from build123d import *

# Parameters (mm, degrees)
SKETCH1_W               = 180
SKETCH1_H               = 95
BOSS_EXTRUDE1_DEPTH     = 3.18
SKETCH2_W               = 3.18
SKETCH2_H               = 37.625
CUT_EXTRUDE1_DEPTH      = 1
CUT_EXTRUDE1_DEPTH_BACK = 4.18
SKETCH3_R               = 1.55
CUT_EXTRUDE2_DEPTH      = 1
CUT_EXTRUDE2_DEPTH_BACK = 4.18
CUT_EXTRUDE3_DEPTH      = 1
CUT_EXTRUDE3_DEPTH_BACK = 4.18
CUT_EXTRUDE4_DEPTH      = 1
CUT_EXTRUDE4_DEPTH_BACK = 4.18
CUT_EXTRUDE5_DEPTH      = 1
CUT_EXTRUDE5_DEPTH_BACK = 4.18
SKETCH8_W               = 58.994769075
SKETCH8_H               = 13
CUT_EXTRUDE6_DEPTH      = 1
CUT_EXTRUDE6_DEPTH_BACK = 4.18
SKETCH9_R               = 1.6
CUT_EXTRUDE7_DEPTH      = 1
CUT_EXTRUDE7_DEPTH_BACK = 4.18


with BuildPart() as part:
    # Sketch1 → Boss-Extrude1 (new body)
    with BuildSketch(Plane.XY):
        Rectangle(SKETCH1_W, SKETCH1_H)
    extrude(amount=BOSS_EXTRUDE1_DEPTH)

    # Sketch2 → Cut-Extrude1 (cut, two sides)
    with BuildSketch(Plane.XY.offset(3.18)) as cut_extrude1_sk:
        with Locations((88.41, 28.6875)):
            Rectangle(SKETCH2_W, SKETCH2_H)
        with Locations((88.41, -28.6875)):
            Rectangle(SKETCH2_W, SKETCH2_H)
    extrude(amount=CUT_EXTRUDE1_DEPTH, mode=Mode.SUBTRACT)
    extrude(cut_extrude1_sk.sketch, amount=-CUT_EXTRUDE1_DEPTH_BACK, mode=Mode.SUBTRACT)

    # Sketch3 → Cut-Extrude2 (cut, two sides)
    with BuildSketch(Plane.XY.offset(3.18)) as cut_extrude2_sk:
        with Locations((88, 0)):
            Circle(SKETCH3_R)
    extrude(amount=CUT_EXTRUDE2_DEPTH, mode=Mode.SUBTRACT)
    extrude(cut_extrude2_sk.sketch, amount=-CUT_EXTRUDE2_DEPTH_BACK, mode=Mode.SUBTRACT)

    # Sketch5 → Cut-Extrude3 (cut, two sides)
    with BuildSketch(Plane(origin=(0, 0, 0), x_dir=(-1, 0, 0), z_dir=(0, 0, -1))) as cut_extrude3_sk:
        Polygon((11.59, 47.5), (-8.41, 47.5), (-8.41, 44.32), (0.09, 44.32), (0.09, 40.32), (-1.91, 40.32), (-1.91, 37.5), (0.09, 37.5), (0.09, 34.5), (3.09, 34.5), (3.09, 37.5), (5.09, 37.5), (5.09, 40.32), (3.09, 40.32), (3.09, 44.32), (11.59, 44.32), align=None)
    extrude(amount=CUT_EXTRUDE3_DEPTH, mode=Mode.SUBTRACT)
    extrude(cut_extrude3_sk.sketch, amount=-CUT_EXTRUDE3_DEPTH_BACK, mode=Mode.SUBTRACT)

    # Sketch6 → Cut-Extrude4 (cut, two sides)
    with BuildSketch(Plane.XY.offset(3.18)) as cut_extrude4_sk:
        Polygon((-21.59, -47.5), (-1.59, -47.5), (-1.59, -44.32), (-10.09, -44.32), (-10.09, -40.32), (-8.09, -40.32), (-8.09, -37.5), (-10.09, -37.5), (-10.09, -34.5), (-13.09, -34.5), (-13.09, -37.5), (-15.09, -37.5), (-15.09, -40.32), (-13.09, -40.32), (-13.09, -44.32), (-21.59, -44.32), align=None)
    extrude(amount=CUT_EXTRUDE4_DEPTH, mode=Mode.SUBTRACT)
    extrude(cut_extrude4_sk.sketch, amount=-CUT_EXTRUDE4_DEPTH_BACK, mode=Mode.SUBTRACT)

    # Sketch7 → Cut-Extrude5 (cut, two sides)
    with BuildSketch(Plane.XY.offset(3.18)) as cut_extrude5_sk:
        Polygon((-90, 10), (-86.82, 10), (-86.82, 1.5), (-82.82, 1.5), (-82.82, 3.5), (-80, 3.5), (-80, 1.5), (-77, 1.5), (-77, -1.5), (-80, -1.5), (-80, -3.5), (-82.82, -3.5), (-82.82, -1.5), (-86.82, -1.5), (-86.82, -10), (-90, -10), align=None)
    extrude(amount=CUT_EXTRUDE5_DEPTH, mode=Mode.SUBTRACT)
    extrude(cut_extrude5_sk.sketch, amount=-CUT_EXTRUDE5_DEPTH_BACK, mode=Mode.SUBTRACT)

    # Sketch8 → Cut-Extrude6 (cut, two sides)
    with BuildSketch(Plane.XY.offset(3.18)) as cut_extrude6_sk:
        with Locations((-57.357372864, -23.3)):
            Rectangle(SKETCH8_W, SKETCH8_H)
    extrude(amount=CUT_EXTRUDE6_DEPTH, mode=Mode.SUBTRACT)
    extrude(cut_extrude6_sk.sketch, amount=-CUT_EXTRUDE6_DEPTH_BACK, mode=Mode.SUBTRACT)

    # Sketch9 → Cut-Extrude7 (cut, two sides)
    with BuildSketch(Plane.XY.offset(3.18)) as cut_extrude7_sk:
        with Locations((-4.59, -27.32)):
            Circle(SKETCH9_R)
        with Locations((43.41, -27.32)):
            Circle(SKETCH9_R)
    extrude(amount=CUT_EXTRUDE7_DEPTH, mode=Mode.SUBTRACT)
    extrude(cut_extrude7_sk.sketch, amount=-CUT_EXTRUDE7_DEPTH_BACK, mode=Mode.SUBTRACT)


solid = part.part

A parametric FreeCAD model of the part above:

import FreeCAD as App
import Part
import Sketcher
from FreeCAD import Vector

doc = App.newDocument("Part")
body = doc.addObject("PartDesign::Body", "Body")

sketch1 = body.newObject("Sketcher::SketchObject", "Sketch")
sketch1.AttachmentSupport = (doc.getObject("XY_Plane"), [""])
sketch1.MapMode = "FlatFace"
sketch1.addGeometry([
    Part.LineSegment(Vector(-90, 48, 0), Vector(-90, -48, 0)),
    Part.LineSegment(Vector(-90, -48, 0), Vector(90, -48, 0)),
    Part.LineSegment(Vector(90, -48, 0), Vector(90, 48, 0)),
    Part.LineSegment(Vector(90, 48, 0), Vector(-90, 48, 0)),
], False)
sketch1.addConstraint([
    Sketcher.Constraint("Coincident", 0, 2, 1, 1),
    Sketcher.Constraint("Coincident", 1, 2, 2, 1),
    Sketcher.Constraint("Coincident", 2, 2, 3, 1),
    Sketcher.Constraint("Coincident", 3, 2, 0, 1),
    Sketcher.Constraint("Vertical", 0),
    Sketcher.Constraint("Horizontal", 1),
    Sketcher.Constraint("Vertical", 2),
    Sketcher.Constraint("Horizontal", 3),
    Sketcher.Constraint("Symmetric", 0, 2, 2, 2, -1, 1),
    Sketcher.Constraint("DistanceX", 1, 1, 1, 2, 180.0),
    Sketcher.Constraint("DistanceY", 0, 2, 0, 1, 95.0),
])
pad1 = body.newObject("PartDesign::Pad", "Pad")
pad1.Profile = sketch1
pad1.Length = 3.18

sketch2 = body.newObject("Sketcher::SketchObject", "Sketch001")
sketch2.AttachmentSupport = (doc.getObject("XY_Plane"), [""])
sketch2.MapMode = "FlatFace"
sketch2.AttachmentOffset = App.Placement(Vector(0, 0, 3.18), App.Rotation())
sketch2.addGeometry([
    Part.LineSegment(Vector(86.8, 47.5, 0), Vector(86.8, 9.9, 0)),
    Part.LineSegment(Vector(86.8, 9.9, 0), Vector(90, 9.9, 0)),
    Part.LineSegment(Vector(90, 9.9, 0), Vector(90, 47.5, 0)),
    Part.LineSegment(Vector(90, 47.5, 0), Vector(86.8, 47.5, 0)),
    Part.LineSegment(Vector(86.8, -9.9, 0), Vector(86.8, -47.5, 0)),
    Part.LineSegment(Vector(86.8, -47.5, 0), Vector(90, -47.5, 0)),
    Part.LineSegment(Vector(90, -47.5, 0), Vector(90, -9.9, 0)),
    Part.LineSegment(Vector(90, -9.9, 0), Vector(86.8, -9.9, 0)),
], False)
sketch2.addConstraint([
    Sketcher.Constraint("Coincident", 0, 2, 1, 1),
    Sketcher.Constraint("Coincident", 1, 2, 2, 1),
    Sketcher.Constraint("Coincident", 2, 2, 3, 1),
    Sketcher.Constraint("Coincident", 3, 2, 0, 1),
    Sketcher.Constraint("Coincident", 4, 2, 5, 1),
    Sketcher.Constraint("Coincident", 5, 2, 6, 1),
    Sketcher.Constraint("Coincident", 6, 2, 7, 1),
    Sketcher.Constraint("Coincident", 7, 2, 4, 1),
    Sketcher.Constraint("Vertical", 0),
    Sketcher.Constraint("Horizontal", 1),
    Sketcher.Constraint("Vertical", 2),
    Sketcher.Constraint("Horizontal", 3),
    Sketcher.Constraint("Vertical", 4),
    Sketcher.Constraint("Horizontal", 5),
    Sketcher.Constraint("Vertical", 6),
    Sketcher.Constraint("Horizontal", 7),
    Sketcher.Constraint("Symmetric", 3, 2, 4, 2, -1),
    Sketcher.Constraint("Symmetric", 1, 2, 6, 2, -1),
    Sketcher.Constraint("DistanceX", -1, 1, 1, 2, 90.0),
    Sketcher.Constraint("DistanceY", 4, 2, 3, 2, 95.0),
    Sketcher.Constraint("DistanceX", 1, 1, 1, 2, 3.18),
    Sketcher.Constraint("DistanceY", 0, 2, 0, 1, 37.625),
])
pocket1 = body.newObject("PartDesign::Pocket", "Pocket")
pocket1.Profile = sketch2
pocket1.Type = "ThroughAll"
pocket1.Midplane = True

sketch3 = body.newObject("Sketcher::SketchObject", "Sketch002")
sketch3.AttachmentSupport = (doc.getObject("XY_Plane"), [""])
sketch3.MapMode = "FlatFace"
sketch3.AttachmentOffset = App.Placement(Vector(0, 0, 3.18), App.Rotation())
sketch3.addGeometry(Part.Circle(Vector(88, 0, 0), Vector(0, 0, 1), 1.6), False)
sketch3.addConstraint([
    Sketcher.Constraint("PointOnObject", 0, 3, -1),
    Sketcher.Constraint("Diameter", 0, 3.1),
    Sketcher.Constraint("DistanceX", -1, 1, 0, 3, 88.0),
])
pocket2 = body.newObject("PartDesign::Pocket", "Pocket001")
pocket2.Profile = sketch3
pocket2.Type = "ThroughAll"
pocket2.Midplane = True

sketch4 = body.newObject("Sketcher::SketchObject", "Sketch003")
sketch4.AttachmentSupport = (doc.getObject("XY_Plane"), [""])
sketch4.MapMode = "FlatFace"
sketch4.addGeometry([
    Part.LineSegment(Vector(-11.6, 47.5, 0), Vector(8.4, 47.5, 0)),
    Part.LineSegment(Vector(8.4, 47.5, 0), Vector(8.4, 44.3, 0)),
    Part.LineSegment(Vector(8.4, 44.3, 0), Vector(-0.1, 44.3, 0)),
    Part.LineSegment(Vector(-0.1, 44.3, 0), Vector(-0.1, 40.3, 0)),
    Part.LineSegment(Vector(-0.1, 40.3, 0), Vector(1.9, 40.3, 0)),
    Part.LineSegment(Vector(1.9, 40.3, 0), Vector(1.9, 37.5, 0)),
    Part.LineSegment(Vector(1.9, 37.5, 0), Vector(-0.1, 37.5, 0)),
    Part.LineSegment(Vector(-0.1, 37.5, 0), Vector(-0.1, 34.5, 0)),
    Part.LineSegment(Vector(-0.1, 34.5, 0), Vector(-3.1, 34.5, 0)),
    Part.LineSegment(Vector(-3.1, 34.5, 0), Vector(-3.1, 37.5, 0)),
    Part.LineSegment(Vector(-3.1, 37.5, 0), Vector(-5.1, 37.5, 0)),
    Part.LineSegment(Vector(-5.1, 37.5, 0), Vector(-5.1, 40.3, 0)),
    Part.LineSegment(Vector(-5.1, 40.3, 0), Vector(-3.1, 40.3, 0)),
    Part.LineSegment(Vector(-3.1, 40.3, 0), Vector(-3.1, 44.3, 0)),
    Part.LineSegment(Vector(-3.1, 44.3, 0), Vector(-11.6, 44.3, 0)),
    Part.LineSegment(Vector(-11.6, 44.3, 0), Vector(-11.6, 47.5, 0)),
], False)
sketch4.addConstraint([
    Sketcher.Constraint("Coincident", 0, 2, 1, 1),
    Sketcher.Constraint("Coincident", 1, 2, 2, 1),
    Sketcher.Constraint("Coincident", 2, 2, 3, 1),
    Sketcher.Constraint("Coincident", 3, 2, 4, 1),
    Sketcher.Constraint("Coincident", 4, 2, 5, 1),
    Sketcher.Constraint("Coincident", 5, 2, 6, 1),
    Sketcher.Constraint("Coincident", 6, 2, 7, 1),
    Sketcher.Constraint("Coincident", 7, 2, 8, 1),
    Sketcher.Constraint("Coincident", 8, 2, 9, 1),
    Sketcher.Constraint("Coincident", 9, 2, 10, 1),
    Sketcher.Constraint("Coincident", 10, 2, 11, 1),
    Sketcher.Constraint("Coincident", 11, 2, 12, 1),
    Sketcher.Constraint("Coincident", 12, 2, 13, 1),
    Sketcher.Constraint("Coincident", 13, 2, 14, 1),
    Sketcher.Constraint("Coincident", 14, 2, 15, 1),
    Sketcher.Constraint("Coincident", 15, 2, 0, 1),
    Sketcher.Constraint("Horizontal", 0),
    Sketcher.Constraint("Vertical", 1),
    Sketcher.Constraint("Horizontal", 2),
    Sketcher.Constraint("Vertical", 3),
    Sketcher.Constraint("Horizontal", 4),
    Sketcher.Constraint("Vertical", 5),
    Sketcher.Constraint("Horizontal", 6),
    Sketcher.Constraint("Vertical", 7),
    Sketcher.Constraint("Horizontal", 8),
    Sketcher.Constraint("Vertical", 9),
    Sketcher.Constraint("Horizontal", 10),
    Sketcher.Constraint("Vertical", 11),
    Sketcher.Constraint("Horizontal", 12),
    Sketcher.Constraint("Vertical", 13),
    Sketcher.Constraint("Horizontal", 14),
    Sketcher.Constraint("Vertical", 15),
    Sketcher.Constraint("Horizontal", 6, 2, 9, 2),
    Sketcher.Constraint("Horizontal", 4, 2, 11, 2),
    Sketcher.Constraint("Horizontal", 2, 2, 13, 2),
    Sketcher.Constraint("Vertical", 3, 2, 6, 2),
    Sketcher.Constraint("Vertical", 9, 2, 12, 2),
    Sketcher.Constraint("Equal", 6, 10),
    Sketcher.Constraint("Equal", 2, 14),
    Sketcher.Constraint("Equal", 8, 7),
    Sketcher.Constraint("DistanceX", 0, 1, 0, 2, 20.0),
    Sketcher.Constraint("DistanceX", 4, 1, 4, 2, 2.0),
    Sketcher.Constraint("DistanceX", 8, 2, 8, 1, 3.0),
    Sketcher.Constraint("DistanceY", 3, 2, 3, 1, 4.0),
    Sketcher.Constraint("DistanceY", 5, 2, 0, 2, 10.0),
    Sketcher.Constraint("DistanceY", 1, 2, 1, 1, 3.18),
    Sketcher.Constraint("DistanceY", -1, 1, 0, 2, 47.5),
    Sketcher.Constraint("DistanceX", -1, 1, 0, 2, 8.41),
])
pocket3 = body.newObject("PartDesign::Pocket", "Pocket002")
pocket3.Profile = sketch4
pocket3.Type = "ThroughAll"
pocket3.Midplane = True

sketch5 = body.newObject("Sketcher::SketchObject", "Sketch004")
sketch5.AttachmentSupport = (doc.getObject("XY_Plane"), [""])
sketch5.MapMode = "FlatFace"
sketch5.AttachmentOffset = App.Placement(Vector(0, 0, 3.18), App.Rotation())
sketch5.addGeometry([
    Part.LineSegment(Vector(-21.6, -47.5, 0), Vector(-1.6, -47.5, 0)),
    Part.LineSegment(Vector(-1.6, -47.5, 0), Vector(-1.6, -44.3, 0)),
    Part.LineSegment(Vector(-1.6, -44.3, 0), Vector(-10.1, -44.3, 0)),
    Part.LineSegment(Vector(-10.1, -44.3, 0), Vector(-10.1, -40.3, 0)),
    Part.LineSegment(Vector(-10.1, -40.3, 0), Vector(-8.1, -40.3, 0)),
    Part.LineSegment(Vector(-8.1, -40.3, 0), Vector(-8.1, -37.5, 0)),
    Part.LineSegment(Vector(-8.1, -37.5, 0), Vector(-10.1, -37.5, 0)),
    Part.LineSegment(Vector(-10.1, -37.5, 0), Vector(-10.1, -34.5, 0)),
    Part.LineSegment(Vector(-10.1, -34.5, 0), Vector(-13.1, -34.5, 0)),
    Part.LineSegment(Vector(-13.1, -34.5, 0), Vector(-13.1, -37.5, 0)),
    Part.LineSegment(Vector(-13.1, -37.5, 0), Vector(-15.1, -37.5, 0)),
    Part.LineSegment(Vector(-15.1, -37.5, 0), Vector(-15.1, -40.3, 0)),
    Part.LineSegment(Vector(-15.1, -40.3, 0), Vector(-13.1, -40.3, 0)),
    Part.LineSegment(Vector(-13.1, -40.3, 0), Vector(-13.1, -44.3, 0)),
    Part.LineSegment(Vector(-13.1, -44.3, 0), Vector(-21.6, -44.3, 0)),
    Part.LineSegment(Vector(-21.6, -44.3, 0), Vector(-21.6, -47.5, 0)),
], False)
sketch5.addConstraint([
    Sketcher.Constraint("Coincident", 0, 2, 1, 1),
    Sketcher.Constraint("Coincident", 1, 2, 2, 1),
    Sketcher.Constraint("Coincident", 2, 2, 3, 1),
    Sketcher.Constraint("Coincident", 3, 2, 4, 1),
    Sketcher.Constraint("Coincident", 4, 2, 5, 1),
    Sketcher.Constraint("Coincident", 5, 2, 6, 1),
    Sketcher.Constraint("Coincident", 6, 2, 7, 1),
    Sketcher.Constraint("Coincident", 7, 2, 8, 1),
    Sketcher.Constraint("Coincident", 8, 2, 9, 1),
    Sketcher.Constraint("Coincident", 9, 2, 10, 1),
    Sketcher.Constraint("Coincident", 10, 2, 11, 1),
    Sketcher.Constraint("Coincident", 11, 2, 12, 1),
    Sketcher.Constraint("Coincident", 12, 2, 13, 1),
    Sketcher.Constraint("Coincident", 13, 2, 14, 1),
    Sketcher.Constraint("Coincident", 14, 2, 15, 1),
    Sketcher.Constraint("Coincident", 15, 2, 0, 1),
    Sketcher.Constraint("Horizontal", 0),
    Sketcher.Constraint("Vertical", 1),
    Sketcher.Constraint("Horizontal", 2),
    Sketcher.Constraint("Vertical", 3),
    Sketcher.Constraint("Horizontal", 4),
    Sketcher.Constraint("Vertical", 5),
    Sketcher.Constraint("Horizontal", 6),
    Sketcher.Constraint("Vertical", 7),
    Sketcher.Constraint("Horizontal", 8),
    Sketcher.Constraint("Vertical", 9),
    Sketcher.Constraint("Horizontal", 10),
    Sketcher.Constraint("Vertical", 11),
    Sketcher.Constraint("Horizontal", 12),
    Sketcher.Constraint("Vertical", 13),
    Sketcher.Constraint("Horizontal", 14),
    Sketcher.Constraint("Vertical", 15),
    Sketcher.Constraint("Horizontal", 6, 2, 9, 2),
    Sketcher.Constraint("Horizontal", 4, 2, 11, 2),
    Sketcher.Constraint("Horizontal", 2, 2, 13, 2),
    Sketcher.Constraint("Vertical", 3, 2, 6, 2),
    Sketcher.Constraint("Vertical", 9, 2, 12, 2),
    Sketcher.Constraint("Equal", 6, 10),
    Sketcher.Constraint("Equal", 2, 14),
    Sketcher.Constraint("Equal", 8, 7),
    Sketcher.Constraint("DistanceX", 0, 1, 0, 2, 20.0),
    Sketcher.Constraint("DistanceX", 4, 1, 4, 2, 2.0),
    Sketcher.Constraint("DistanceX", 8, 2, 8, 1, 3.0),
    Sketcher.Constraint("DistanceY", 3, 1, 3, 2, 4.0),
    Sketcher.Constraint("DistanceY", 0, 2, 5, 2, 10.0),
    Sketcher.Constraint("DistanceY", 1, 1, 1, 2, 3.18),
    Sketcher.Constraint("DistanceY", 0, 2, -1, 1, 47.5),
    Sketcher.Constraint("DistanceX", 0, 2, -1, 1, 1.59),
])
pocket4 = body.newObject("PartDesign::Pocket", "Pocket003")
pocket4.Profile = sketch5
pocket4.Type = "ThroughAll"
pocket4.Midplane = True

sketch6 = body.newObject("Sketcher::SketchObject", "Sketch005")
sketch6.AttachmentSupport = (doc.getObject("XY_Plane"), [""])
sketch6.MapMode = "FlatFace"
sketch6.AttachmentOffset = App.Placement(Vector(0, 0, 3.18), App.Rotation())
sketch6.addGeometry([
    Part.LineSegment(Vector(-86.8, 10, 0), Vector(-90, 10, 0)),
    Part.LineSegment(Vector(-90, 10, 0), Vector(-90, -10, 0)),
    Part.LineSegment(Vector(-90, -10, 0), Vector(-86.8, -10, 0)),
    Part.LineSegment(Vector(-86.8, -10, 0), Vector(-86.8, -1.5, 0)),
    Part.LineSegment(Vector(-86.8, -1.5, 0), Vector(-82.8, -1.5, 0)),
    Part.LineSegment(Vector(-82.8, -1.5, 0), Vector(-82.8, -3.5, 0)),
    Part.LineSegment(Vector(-82.8, -3.5, 0), Vector(-80, -3.5, 0)),
    Part.LineSegment(Vector(-80, -3.5, 0), Vector(-80, -1.5, 0)),
    Part.LineSegment(Vector(-80, -1.5, 0), Vector(-77, -1.5, 0)),
    Part.LineSegment(Vector(-77, -1.5, 0), Vector(-77, 1.5, 0)),
    Part.LineSegment(Vector(-77, 1.5, 0), Vector(-80, 1.5, 0)),
    Part.LineSegment(Vector(-80, 1.5, 0), Vector(-80, 3.5, 0)),
    Part.LineSegment(Vector(-80, 3.5, 0), Vector(-82.8, 3.5, 0)),
    Part.LineSegment(Vector(-82.8, 3.5, 0), Vector(-82.8, 1.5, 0)),
    Part.LineSegment(Vector(-82.8, 1.5, 0), Vector(-86.8, 1.5, 0)),
    Part.LineSegment(Vector(-86.8, 1.5, 0), Vector(-86.8, 10, 0)),
], False)
sketch6.addConstraint([
    Sketcher.Constraint("Coincident", 0, 2, 1, 1),
    Sketcher.Constraint("Coincident", 1, 2, 2, 1),
    Sketcher.Constraint("Coincident", 2, 2, 3, 1),
    Sketcher.Constraint("Coincident", 3, 2, 4, 1),
    Sketcher.Constraint("Coincident", 4, 2, 5, 1),
    Sketcher.Constraint("Coincident", 5, 2, 6, 1),
    Sketcher.Constraint("Coincident", 6, 2, 7, 1),
    Sketcher.Constraint("Coincident", 7, 2, 8, 1),
    Sketcher.Constraint("Coincident", 8, 2, 9, 1),
    Sketcher.Constraint("Coincident", 9, 2, 10, 1),
    Sketcher.Constraint("Coincident", 10, 2, 11, 1),
    Sketcher.Constraint("Coincident", 11, 2, 12, 1),
    Sketcher.Constraint("Coincident", 12, 2, 13, 1),
    Sketcher.Constraint("Coincident", 13, 2, 14, 1),
    Sketcher.Constraint("Coincident", 14, 2, 15, 1),
    Sketcher.Constraint("Coincident", 15, 2, 0, 1),
    Sketcher.Constraint("Horizontal", 0),
    Sketcher.Constraint("Vertical", 1),
    Sketcher.Constraint("Horizontal", 2),
    Sketcher.Constraint("Vertical", 3),
    Sketcher.Constraint("Horizontal", 4),
    Sketcher.Constraint("Vertical", 5),
    Sketcher.Constraint("Horizontal", 6),
    Sketcher.Constraint("Vertical", 7),
    Sketcher.Constraint("Horizontal", 8),
    Sketcher.Constraint("Vertical", 9),
    Sketcher.Constraint("Horizontal", 10),
    Sketcher.Constraint("Vertical", 11),
    Sketcher.Constraint("Horizontal", 12),
    Sketcher.Constraint("Vertical", 13),
    Sketcher.Constraint("Horizontal", 14),
    Sketcher.Constraint("Vertical", 15),
    Sketcher.Constraint("Symmetric", 7, 2, 10, 2, -1),
    Sketcher.Constraint("Symmetric", 5, 2, 12, 2, -1),
    Sketcher.Constraint("Symmetric", 3, 2, 14, 2, -1),
    Sketcher.Constraint("Horizontal", 4, 2, 7, 2),
    Sketcher.Constraint("Equal", 10, 9),
    Sketcher.Constraint("Equal", 3, 15),
    Sketcher.Constraint("DistanceX", 4, 1, 4, 2, 4.0),
    Sketcher.Constraint("DistanceX", 8, 1, 8, 2, 3.0),
    Sketcher.Constraint("DistanceY", 1, 2, 1, 1, 20.0),
    Sketcher.Constraint("DistanceY", 5, 2, 5, 1, 2.0),
    Sketcher.Constraint("DistanceX", 0, 2, -1, 1, 90.0),
    Sketcher.Constraint("DistanceX", 6, 2, -1, 1, 80.0),
    Sketcher.Constraint("DistanceX", 0, 2, 0, 1, 3.18),
])
pocket5 = body.newObject("PartDesign::Pocket", "Pocket004")
pocket5.Profile = sketch6
pocket5.Type = "ThroughAll"
pocket5.Midplane = True

sketch7 = body.newObject("Sketcher::SketchObject", "Sketch006")
sketch7.AttachmentSupport = (doc.getObject("XY_Plane"), [""])
sketch7.MapMode = "FlatFace"
sketch7.AttachmentOffset = App.Placement(Vector(0, 0, 3.18), App.Rotation())
sketch7.addGeometry([
    Part.LineSegment(Vector(-87, -17, 0), Vector(-87, -30, 0)),
    Part.LineSegment(Vector(-87, -30, 0), Vector(-28, -30, 0)),
    Part.LineSegment(Vector(-28, -30, 0), Vector(-28, -17, 0)),
    Part.LineSegment(Vector(-28, -17, 0), Vector(-87, -17, 0)),
], False)
sketch7.addConstraint([
    Sketcher.Constraint("Coincident", 0, 2, 1, 1),
    Sketcher.Constraint("Coincident", 1, 2, 2, 1),
    Sketcher.Constraint("Coincident", 2, 2, 3, 1),
    Sketcher.Constraint("Coincident", 3, 2, 0, 1),
    Sketcher.Constraint("Vertical", 0),
    Sketcher.Constraint("Horizontal", 1),
    Sketcher.Constraint("Vertical", 2),
    Sketcher.Constraint("Horizontal", 3),
    Sketcher.Constraint("DistanceY", 0, 2, 0, 1, 13.0),
    Sketcher.Constraint("DistanceY", 0, 2, -1, 1, 29.8),
    Sketcher.Constraint("DistanceX", 1, 1, 1, 2, 58.994769),
    Sketcher.Constraint("DistanceX", 1, 2, -1, 1, 27.859988),
])
pocket6 = body.newObject("PartDesign::Pocket", "Pocket005")
pocket6.Profile = sketch7
pocket6.Type = "ThroughAll"
pocket6.Midplane = True

sketch8 = body.newObject("Sketcher::SketchObject", "Sketch007")
sketch8.AttachmentSupport = (doc.getObject("XY_Plane"), [""])
sketch8.MapMode = "FlatFace"
sketch8.AttachmentOffset = App.Placement(Vector(0, 0, 3.18), App.Rotation())
sketch8.addGeometry([
    Part.Circle(Vector(-4.6, -27.3, 0), Vector(0, 0, 1), 1.6),
    Part.Circle(Vector(43.4, -27.3, 0), Vector(0, 0, 1), 1.6),
], False)
sketch8.addConstraint([
    Sketcher.Constraint("Equal", 0, 1),
    Sketcher.Constraint("Horizontal", 0, 3, 1, 3),
    Sketcher.Constraint("Diameter", 0, 3.2),
    Sketcher.Constraint("DistanceX", 0, 3, 1, 3, 48.0),
    Sketcher.Constraint("DistanceX", 0, 3, -1, 1, 4.59),
    Sketcher.Constraint("DistanceY", 0, 3, -1, 1, 27.32),
])
pocket7 = body.newObject("PartDesign::Pocket", "Pocket006")
pocket7.Profile = sketch8
pocket7.Type = "ThroughAll"
pocket7.Midplane = True

doc.recompute()
